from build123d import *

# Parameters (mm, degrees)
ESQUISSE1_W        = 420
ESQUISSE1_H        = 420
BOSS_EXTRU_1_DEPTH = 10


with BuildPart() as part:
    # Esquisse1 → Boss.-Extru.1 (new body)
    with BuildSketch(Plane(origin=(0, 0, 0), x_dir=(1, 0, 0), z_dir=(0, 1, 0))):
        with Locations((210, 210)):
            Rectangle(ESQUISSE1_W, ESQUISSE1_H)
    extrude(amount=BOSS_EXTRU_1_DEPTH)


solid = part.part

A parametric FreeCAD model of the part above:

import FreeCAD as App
import Part
import Sketcher
Q = App.Units.Quantity


def add_polygon(sketch, points):
    """Adds a closed chain of lines whose ends are joined by coincident constraints."""
    first, n = sketch.GeometryCount, len(points)
    for a, b in zip(points, points[1:] + points[:1]):
        sketch.addGeometry(Part.LineSegment(App.Vector(*a, 0), App.Vector(*b, 0)), False)
    for i in range(n):
        sketch.addConstraint(Sketcher.Constraint("Coincident", first + i, 2, first + (i + 1) % n, 1))

doc = App.newDocument("Part")
body = doc.addObject("PartDesign::Body", "Body")

# Sketch on XZ plane
sketch1 = body.newObject("Sketcher::SketchObject", "Sketch")
sketch1.AttachmentSupport = (doc.getObject("XZ_Plane"), [""])
sketch1.MapMode = "FlatFace"
add_polygon(sketch1, [(0, -420), (0, 0), (420, 0), (420, -420)])  # lines 0-3
sketch1.addConstraint([
    Sketcher.Constraint("Vertical", 0),
    Sketcher.Constraint("Horizontal", 1),
    Sketcher.Constraint("Vertical", 2),
    Sketcher.Constraint("Horizontal", 3),
    Sketcher.Constraint("Coincident", 0, 2, -1, 1),
    Sketcher.Constraint("Equal", 3, 0),
    Sketcher.Constraint("DistanceX", 1, 1, 1, 2, Q("420 mm")),
])
pad1 = body.newObject("PartDesign::Pad", "Pad")
pad1.Profile = sketch1
pad1.Length = 10
pad1.Reversed = True

doc.recompute()
